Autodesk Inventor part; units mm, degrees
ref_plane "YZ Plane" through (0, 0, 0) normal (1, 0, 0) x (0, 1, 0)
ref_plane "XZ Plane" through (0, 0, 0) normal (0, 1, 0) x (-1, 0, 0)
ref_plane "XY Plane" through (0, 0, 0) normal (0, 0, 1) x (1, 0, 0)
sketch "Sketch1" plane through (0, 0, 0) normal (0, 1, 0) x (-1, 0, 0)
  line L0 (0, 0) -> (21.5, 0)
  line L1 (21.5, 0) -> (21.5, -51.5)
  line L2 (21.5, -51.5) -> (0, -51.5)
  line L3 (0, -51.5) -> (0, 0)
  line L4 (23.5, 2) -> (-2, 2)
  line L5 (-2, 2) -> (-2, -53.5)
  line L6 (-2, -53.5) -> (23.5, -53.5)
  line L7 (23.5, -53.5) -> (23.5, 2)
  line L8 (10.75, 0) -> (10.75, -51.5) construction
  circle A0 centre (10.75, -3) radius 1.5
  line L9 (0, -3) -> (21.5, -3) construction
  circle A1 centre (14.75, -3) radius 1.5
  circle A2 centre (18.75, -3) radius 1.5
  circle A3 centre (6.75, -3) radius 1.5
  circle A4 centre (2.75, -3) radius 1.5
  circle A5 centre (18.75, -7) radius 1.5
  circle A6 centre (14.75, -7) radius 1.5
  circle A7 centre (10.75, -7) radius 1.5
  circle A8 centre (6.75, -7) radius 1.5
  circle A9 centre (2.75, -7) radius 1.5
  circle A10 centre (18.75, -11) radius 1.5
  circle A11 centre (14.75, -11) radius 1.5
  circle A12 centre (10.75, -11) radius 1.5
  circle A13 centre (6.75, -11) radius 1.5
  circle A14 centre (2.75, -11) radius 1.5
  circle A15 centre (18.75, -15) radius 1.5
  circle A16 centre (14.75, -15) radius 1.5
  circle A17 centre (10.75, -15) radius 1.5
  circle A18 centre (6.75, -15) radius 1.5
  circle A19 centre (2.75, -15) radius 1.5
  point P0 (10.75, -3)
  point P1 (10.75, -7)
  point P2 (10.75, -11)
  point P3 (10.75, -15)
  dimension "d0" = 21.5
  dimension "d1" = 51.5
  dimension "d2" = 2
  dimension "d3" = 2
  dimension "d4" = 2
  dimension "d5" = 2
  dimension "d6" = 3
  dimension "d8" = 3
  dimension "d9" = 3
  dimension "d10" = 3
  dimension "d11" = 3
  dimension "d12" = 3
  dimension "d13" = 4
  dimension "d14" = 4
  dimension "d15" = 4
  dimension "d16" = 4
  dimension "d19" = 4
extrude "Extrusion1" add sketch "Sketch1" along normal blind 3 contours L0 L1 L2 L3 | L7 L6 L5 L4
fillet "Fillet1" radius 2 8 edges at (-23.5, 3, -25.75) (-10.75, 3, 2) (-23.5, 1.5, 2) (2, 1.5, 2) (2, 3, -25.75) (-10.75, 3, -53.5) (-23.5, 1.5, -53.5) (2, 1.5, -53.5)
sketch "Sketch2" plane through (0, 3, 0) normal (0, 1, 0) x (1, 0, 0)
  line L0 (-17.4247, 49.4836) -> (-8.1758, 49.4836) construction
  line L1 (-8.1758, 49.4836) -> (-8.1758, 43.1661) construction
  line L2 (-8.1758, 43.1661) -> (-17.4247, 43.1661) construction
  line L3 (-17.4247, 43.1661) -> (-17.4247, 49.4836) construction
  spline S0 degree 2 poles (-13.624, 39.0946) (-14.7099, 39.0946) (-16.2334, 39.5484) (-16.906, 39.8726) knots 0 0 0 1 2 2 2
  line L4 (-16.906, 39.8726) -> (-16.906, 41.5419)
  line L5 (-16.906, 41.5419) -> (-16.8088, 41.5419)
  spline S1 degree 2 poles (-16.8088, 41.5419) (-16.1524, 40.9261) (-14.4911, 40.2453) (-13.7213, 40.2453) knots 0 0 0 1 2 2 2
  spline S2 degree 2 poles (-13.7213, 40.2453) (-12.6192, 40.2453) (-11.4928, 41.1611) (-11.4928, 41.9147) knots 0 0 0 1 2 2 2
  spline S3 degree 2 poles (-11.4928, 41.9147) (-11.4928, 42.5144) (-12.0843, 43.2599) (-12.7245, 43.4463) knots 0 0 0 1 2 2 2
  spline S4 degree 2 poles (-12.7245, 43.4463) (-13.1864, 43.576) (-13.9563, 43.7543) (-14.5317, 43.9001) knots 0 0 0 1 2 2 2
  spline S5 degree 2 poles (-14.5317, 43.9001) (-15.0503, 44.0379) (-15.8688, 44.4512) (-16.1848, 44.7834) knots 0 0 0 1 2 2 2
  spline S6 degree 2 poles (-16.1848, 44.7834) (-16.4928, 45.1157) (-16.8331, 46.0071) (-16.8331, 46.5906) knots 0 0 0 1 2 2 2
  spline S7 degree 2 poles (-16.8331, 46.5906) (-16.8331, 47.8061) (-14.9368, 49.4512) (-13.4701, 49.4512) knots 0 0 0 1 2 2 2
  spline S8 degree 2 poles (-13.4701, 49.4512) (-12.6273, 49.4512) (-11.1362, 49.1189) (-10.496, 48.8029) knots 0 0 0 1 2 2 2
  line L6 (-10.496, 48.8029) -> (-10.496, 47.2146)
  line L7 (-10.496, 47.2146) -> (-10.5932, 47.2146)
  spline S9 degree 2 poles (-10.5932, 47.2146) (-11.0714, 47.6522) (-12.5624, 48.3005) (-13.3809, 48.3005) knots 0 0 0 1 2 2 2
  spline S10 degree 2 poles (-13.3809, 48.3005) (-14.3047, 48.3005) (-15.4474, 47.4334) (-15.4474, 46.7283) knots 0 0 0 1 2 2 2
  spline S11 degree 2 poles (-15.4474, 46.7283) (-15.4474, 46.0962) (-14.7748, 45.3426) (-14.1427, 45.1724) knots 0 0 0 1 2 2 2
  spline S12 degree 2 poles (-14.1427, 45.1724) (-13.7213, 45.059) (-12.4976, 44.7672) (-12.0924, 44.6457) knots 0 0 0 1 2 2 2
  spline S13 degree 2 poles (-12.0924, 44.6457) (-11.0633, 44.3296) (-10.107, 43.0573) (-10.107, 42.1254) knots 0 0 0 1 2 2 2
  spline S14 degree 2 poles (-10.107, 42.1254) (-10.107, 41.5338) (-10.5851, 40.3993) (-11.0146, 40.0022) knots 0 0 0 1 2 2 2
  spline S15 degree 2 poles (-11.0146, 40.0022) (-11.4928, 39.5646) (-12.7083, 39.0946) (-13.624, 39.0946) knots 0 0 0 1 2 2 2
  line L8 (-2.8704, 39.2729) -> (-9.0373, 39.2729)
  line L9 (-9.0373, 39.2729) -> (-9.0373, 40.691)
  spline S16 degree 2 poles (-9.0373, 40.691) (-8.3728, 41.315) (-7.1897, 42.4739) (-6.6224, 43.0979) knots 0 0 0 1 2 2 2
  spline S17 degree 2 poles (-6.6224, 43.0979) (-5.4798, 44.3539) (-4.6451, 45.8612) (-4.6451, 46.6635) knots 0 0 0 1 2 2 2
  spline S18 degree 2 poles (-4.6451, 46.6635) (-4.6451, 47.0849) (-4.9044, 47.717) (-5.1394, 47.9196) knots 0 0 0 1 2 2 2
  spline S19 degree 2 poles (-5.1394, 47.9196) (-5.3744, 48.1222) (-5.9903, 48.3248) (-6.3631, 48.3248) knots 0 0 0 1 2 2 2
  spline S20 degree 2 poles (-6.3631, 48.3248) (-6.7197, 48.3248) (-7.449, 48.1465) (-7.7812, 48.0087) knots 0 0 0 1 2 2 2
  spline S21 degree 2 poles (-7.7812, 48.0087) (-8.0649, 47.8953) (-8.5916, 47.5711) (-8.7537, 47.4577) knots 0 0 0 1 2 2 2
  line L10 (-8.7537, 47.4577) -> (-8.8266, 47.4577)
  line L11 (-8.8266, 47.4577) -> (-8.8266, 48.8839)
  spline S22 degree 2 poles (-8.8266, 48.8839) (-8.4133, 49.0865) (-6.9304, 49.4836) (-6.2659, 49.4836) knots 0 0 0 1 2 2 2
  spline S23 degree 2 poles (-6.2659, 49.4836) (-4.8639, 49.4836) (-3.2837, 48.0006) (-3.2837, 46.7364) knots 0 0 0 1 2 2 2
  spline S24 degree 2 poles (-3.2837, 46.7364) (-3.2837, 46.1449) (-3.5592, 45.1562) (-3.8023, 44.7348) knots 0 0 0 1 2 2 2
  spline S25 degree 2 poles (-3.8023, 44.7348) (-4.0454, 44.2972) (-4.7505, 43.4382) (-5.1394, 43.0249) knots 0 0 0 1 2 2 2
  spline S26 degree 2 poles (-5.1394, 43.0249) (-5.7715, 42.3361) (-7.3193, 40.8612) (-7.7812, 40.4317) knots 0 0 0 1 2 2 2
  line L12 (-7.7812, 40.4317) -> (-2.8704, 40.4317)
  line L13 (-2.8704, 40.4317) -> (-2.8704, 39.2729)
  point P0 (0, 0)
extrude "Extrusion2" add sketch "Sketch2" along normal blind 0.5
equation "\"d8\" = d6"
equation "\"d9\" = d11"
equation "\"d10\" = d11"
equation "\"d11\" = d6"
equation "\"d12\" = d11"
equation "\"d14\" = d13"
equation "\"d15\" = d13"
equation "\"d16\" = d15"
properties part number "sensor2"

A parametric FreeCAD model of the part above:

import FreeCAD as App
import Part
import Sketcher
from FreeCAD import Vector
Q = App.Units.Quantity


def edges_at(feature, points):
    """Names of the edges that pass closest to the given points."""
    edges = feature.Shape.Edges
    near = lambda p: min(range(len(edges)), key=lambda i: edges[i].distToShape(Part.Vertex(*p))[0])
    return sorted({f"Edge{near(p) + 1}" for p in points})


def add_polygon(sketch, points):
    """Adds a closed chain of lines whose ends are joined by coincident constraints."""
    first, n = sketch.GeometryCount, len(points)
    for a, b in zip(points, points[1:] + points[:1]):
        sketch.addGeometry(Part.LineSegment(App.Vector(*a, 0), App.Vector(*b, 0)), False)
    for i in range(n):
        sketch.addConstraint(Sketcher.Constraint("Coincident", first + i, 2, first + (i + 1) % n, 1))

doc = App.newDocument("Part")
body = doc.addObject("PartDesign::Body", "Body")

sketch1 = doc.addObject("Sketcher::SketchObject", "Sketch")
body.addObject(sketch1)
sketch1.AttachmentSupport = (doc.XZ_Plane, [""])
sketch1.MapMode = "FlatFace"
add_polygon(sketch1, [(-23.5, -53.5), (-23.5, 2), (2, 2), (2, -53.5)])
sketch1.addGeometry(Part.Circle(Vector(-2.75, -15, 0), Vector(0, 0, 1), 1.5), False)
sketch1.addGeometry(Part.Circle(Vector(-6.75, -15, 0), Vector(0, 0, 1), 1.5), False)
sketch1.addGeometry(Part.Circle(Vector(-2.75, -11, 0), Vector(0, 0, 1), 1.5), False)
sketch1.addGeometry(Part.Circle(Vector(-2.75, -7, 0), Vector(0, 0, 1), 1.5), False)
sketch1.addGeometry(Part.Circle(Vector(-2.75, -3, 0), Vector(0, 0, 1), 1.5), False)
sketch1.addGeometry(Part.Circle(Vector(-6.75, -11, 0), Vector(0, 0, 1), 1.5), False)
sketch1.addGeometry(Part.Circle(Vector(-6.75, -7, 0), Vector(0, 0, 1), 1.5), False)
sketch1.addGeometry(Part.Circle(Vector(-6.75, -3, 0), Vector(0, 0, 1), 1.5), False)
sketch1.addGeometry(Part.Circle(Vector(-10.75, -15, 0), Vector(0, 0, 1), 1.5), False)
sketch1.addGeometry(Part.Circle(Vector(-14.75, -15, 0), Vector(0, 0, 1), 1.5), False)
sketch1.addGeometry(Part.Circle(Vector(-18.75, -15, 0), Vector(0, 0, 1), 1.5), False)
sketch1.addGeometry(Part.Circle(Vector(-10.75, -11, 0), Vector(0, 0, 1), 1.5), False)
sketch1.addGeometry(Part.Circle(Vector(-10.75, -7, 0), Vector(0, 0, 1), 1.5), False)
sketch1.addGeometry(Part.Circle(Vector(-14.75, -11, 0), Vector(0, 0, 1), 1.5), False)
sketch1.addGeometry(Part.Circle(Vector(-14.75, -7, 0), Vector(0, 0, 1), 1.5), False)
sketch1.addGeometry(Part.Circle(Vector(-10.75, -3, 0), Vector(0, 0, 1), 1.5), False)
sketch1.addGeometry(Part.Circle(Vector(-14.75, -3, 0), Vector(0, 0, 1), 1.5), False)
sketch1.addGeometry(Part.Circle(Vector(-18.75, -11, 0), Vector(0, 0, 1), 1.5), False)
sketch1.addGeometry(Part.Circle(Vector(-18.75, -7, 0), Vector(0, 0, 1), 1.5), False)
sketch1.addGeometry(Part.Circle(Vector(-18.75, -3, 0), Vector(0, 0, 1), 1.5), False)
sketch1.addConstraint([
    Sketcher.Constraint("Vertical", 0),
    Sketcher.Constraint("Horizontal", 1),
    Sketcher.Constraint("Vertical", 2),
    Sketcher.Constraint("Horizontal", 3),
    Sketcher.Constraint("Equal", 4, 5),
    Sketcher.Constraint("Equal", 5, 6),
    Sketcher.Constraint("Equal", 6, 7),
    Sketcher.Constraint("Equal", 7, 8),
    Sketcher.Constraint("Equal", 8, 9),
    Sketcher.Constraint("Equal", 9, 10),
    Sketcher.Constraint("Equal", 10, 11),
    Sketcher.Constraint("Equal", 11, 12),
    Sketcher.Constraint("Equal", 12, 13),
    Sketcher.Constraint("Equal", 13, 14),
    Sketcher.Constraint("Equal", 14, 15),
    Sketcher.Constraint("Equal", 15, 16),
    Sketcher.Constraint("Equal", 16, 17),
    Sketcher.Constraint("Equal", 17, 18),
    Sketcher.Constraint("Equal", 18, 19),
    Sketcher.Constraint("Equal", 19, 20),
    Sketcher.Constraint("Equal", 20, 21),
    Sketcher.Constraint("Equal", 21, 22),
    Sketcher.Constraint("Equal", 22, 23),
    Sketcher.Constraint("Horizontal", 4, 3, 5, 3),
    Sketcher.Constraint("Horizontal", 6, 3, 9, 3),
    Sketcher.Constraint("Horizontal", 7, 3, 10, 3),
    Sketcher.Constraint("Horizontal", 8, 3, 11, 3),
    Sketcher.Constraint("Horizontal", 5, 3, 12, 3),
    Sketcher.Constraint("Horizontal", 12, 3, 13, 3),
    Sketcher.Constraint("Horizontal", 13, 3, 14, 3),
    Sketcher.Constraint("Horizontal", 9, 3, 15, 3),
    Sketcher.Constraint("Horizontal", 10, 3, 16, 3),
    Sketcher.Constraint("Horizontal", 15, 3, 17, 3),
    Sketcher.Constraint("Horizontal", 16, 3, 18, 3),
    Sketcher.Constraint("Horizontal", 11, 3, 19, 3),
    Sketcher.Constraint("Horizontal", 19, 3, 20, 3),
    Sketcher.Constraint("Horizontal", 17, 3, 21, 3),
    Sketcher.Constraint("Horizontal", 18, 3, 22, 3),
    Sketcher.Constraint("Horizontal", 20, 3, 23, 3),
    Sketcher.Constraint("Vertical", 4, 3, 6, 3),
    Sketcher.Constraint("Vertical", 6, 3, 7, 3),
    Sketcher.Constraint("Vertical", 7, 3, 8, 3),
    Sketcher.Constraint("Vertical", 5, 3, 9, 3),
    Sketcher.Constraint("Vertical", 9, 3, 10, 3),
    Sketcher.Constraint("Vertical", 10, 3, 11, 3),
    Sketcher.Constraint("Vertical", 12, 3, 15, 3),
    Sketcher.Constraint("Vertical", 15, 3, 16, 3),
    Sketcher.Constraint("Vertical", 13, 3, 17, 3),
    Sketcher.Constraint("Vertical", 17, 3, 18, 3),
    Sketcher.Constraint("Vertical", 16, 3, 19, 3),
    Sketcher.Constraint("Vertical", 18, 3, 20, 3),
    Sketcher.Constraint("Vertical", 14, 3, 21, 3),
    Sketcher.Constraint("Vertical", 21, 3, 22, 3),
    Sketcher.Constraint("Vertical", 22, 3, 23, 3),
    Sketcher.Constraint("Diameter", 4, Q("3 mm")),
    Sketcher.Constraint("DistanceY", 8, 3, -1, 1, Q("3 mm")),
    Sketcher.Constraint("DistanceY", -1, 1, 0, 2, Q("2 mm")),
    Sketcher.Constraint("DistanceX", -1, 1, 1, 2, Q("2 mm")),
    Sketcher.Constraint("DistanceX", 5, 3, 4, 3, Q("4 mm")),
    Sketcher.Constraint("DistanceY", 4, 3, 6, 3, Q("4 mm")),
    Sketcher.Constraint("DistanceY", 6, 3, 7, 3, Q("4 mm")),
    Sketcher.Constraint("DistanceY", 7, 3, 8, 3, Q("4 mm")),
    Sketcher.Constraint("DistanceX", 12, 3, 5, 3, Q("4 mm")),
    Sketcher.Constraint("DistanceX", 13, 3, 12, 3, Q("4 mm")),
    Sketcher.Constraint("DistanceX", 14, 3, 13, 3, Q("4 mm")),
    Sketcher.Constraint("DistanceX", 1, 1, 1, 2, Q("25.5 mm")),
    Sketcher.Constraint("DistanceY", 0, 1, 0, 2, Q("55.5 mm")),
    Sketcher.Constraint("DistanceX", 4, 3, -1, 1, Q("2.75 mm")),
])
pad1 = doc.addObject("PartDesign::Pad", "Pad")
body.addObject(pad1)
pad1.Profile = sketch1
pad1.Length = 3
pad1.Reversed = True
doc.recompute()

fillet = doc.addObject("PartDesign::Fillet", "Fillet")
body.addObject(fillet)
fillet.Base = (pad1, edges_at(pad1, [
    (-23.5, 3, -25.75),
    (-10.75, 3, 2),
    (-23.5, 1.5, 2),
    (2, 1.5, 2),
    (2, 3, -25.75),
    (-10.75, 3, -53.5),
    (-23.5, 1.5, -53.5),
    (2, 1.5, -53.5),
]))
fillet.Radius = 2

sketch2 = doc.addObject("Sketcher::SketchObject", "Sketch001")
body.addObject(sketch2)
sketch2.AttachmentSupport = (doc.XZ_Plane, [""])
sketch2.MapMode = "FlatFace"
sketch2.AttachmentOffset = App.Placement(Vector(0, 0, -3), App.Rotation())
sketch2.addGeometry([
    Part.BSplineCurve([Vector(-13.624, -39.0946, 0), Vector(-14.7099, -39.0946, 0), Vector(-16.2334, -39.5484, 0), Vector(-16.906, -39.8726, 0)], [3, 1, 3], [0, 1, 2], False, 2, [1, 1, 1, 1], False),
    Part.BSplineCurve([Vector(-11.0146, -40.0022, 0), Vector(-11.4928, -39.5646, 0), Vector(-12.7083, -39.0946, 0), Vector(-13.624, -39.0946, 0)], [3, 1, 3], [0, 1, 2], False, 2, [1, 1, 1, 1], False),
    Part.BSplineCurve([Vector(-10.107, -42.1254, 0), Vector(-10.107, -41.5338, 0), Vector(-10.5851, -40.3993, 0), Vector(-11.0146, -40.0022, 0)], [3, 1, 3], [0, 1, 2], False, 2, [1, 1, 1, 1], False),
    Part.BSplineCurve([Vector(-12.0924, -44.6457, 0), Vector(-11.0633, -44.3296, 0), Vector(-10.107, -43.0573, 0), Vector(-10.107, -42.1254, 0)], [3, 1, 3], [0, 1, 2], False, 2, [1, 1, 1, 1], False),
    Part.BSplineCurve([Vector(-14.1427, -45.1724, 0), Vector(-13.7213, -45.059, 0), Vector(-12.4976, -44.7672, 0), Vector(-12.0924, -44.6457, 0)], [3, 1, 3], [0, 1, 2], False, 2, [1, 1, 1, 1], False),
    Part.BSplineCurve([Vector(-15.4474, -46.7283, 0), Vector(-15.4474, -46.0962, 0), Vector(-14.7748, -45.3426, 0), Vector(-14.1427, -45.1724, 0)], [3, 1, 3], [0, 1, 2], False, 2, [1, 1, 1, 1], False),
    Part.BSplineCurve([Vector(-13.3809, -48.3005, 0), Vector(-14.3047, -48.3005, 0), Vector(-15.4474, -47.4334, 0), Vector(-15.4474, -46.7283, 0)], [3, 1, 3], [0, 1, 2], False, 2, [1, 1, 1, 1], False),
    Part.BSplineCurve([Vector(-10.5932, -47.2146, 0), Vector(-11.0714, -47.6522, 0), Vector(-12.5624, -48.3005, 0), Vector(-13.3809, -48.3005, 0)], [3, 1, 3], [0, 1, 2], False, 2, [1, 1, 1, 1], False),
    Part.LineSegment(Vector(-10.5932, -47.2146, 0), Vector(-10.496, -47.2146, 0)),
    Part.LineSegment(Vector(-10.496, -47.2146, 0), Vector(-10.496, -48.8029, 0)),
    Part.BSplineCurve([Vector(-13.4701, -49.4512, 0), Vector(-12.6273, -49.4512, 0), Vector(-11.1362, -49.1189, 0), Vector(-10.496, -48.8029, 0)], [3, 1, 3], [0, 1, 2], False, 2, [1, 1, 1, 1], False),
    Part.BSplineCurve([Vector(-16.8331, -46.5906, 0), Vector(-16.8331, -47.8061, 0), Vector(-14.9368, -49.4512, 0), Vector(-13.4701, -49.4512, 0)], [3, 1, 3], [0, 1, 2], False, 2, [1, 1, 1, 1], False),
    Part.BSplineCurve([Vector(-16.1848, -44.7834, 0), Vector(-16.4928, -45.1157, 0), Vector(-16.8331, -46.0071, 0), Vector(-16.8331, -46.5906, 0)], [3, 1, 3], [0, 1, 2], False, 2, [1, 1, 1, 1], False),
    Part.BSplineCurve([Vector(-14.5317, -43.9001, 0), Vector(-15.0503, -44.0379, 0), Vector(-15.8688, -44.4512, 0), Vector(-16.1848, -44.7834, 0)], [3, 1, 3], [0, 1, 2], False, 2, [1, 1, 1, 1], False),
    Part.BSplineCurve([Vector(-12.7245, -43.4463, 0), Vector(-13.1864, -43.576, 0), Vector(-13.9563, -43.7543, 0), Vector(-14.5317, -43.9001, 0)], [3, 1, 3], [0, 1, 2], False, 2, [1, 1, 1, 1], False),
    Part.BSplineCurve([Vector(-11.4928, -41.9147, 0), Vector(-11.4928, -42.5144, 0), Vector(-12.0843, -43.2599, 0), Vector(-12.7245, -43.4463, 0)], [3, 1, 3], [0, 1, 2], False, 2, [1, 1, 1, 1], False),
    Part.BSplineCurve([Vector(-13.7213, -40.2453, 0), Vector(-12.6192, -40.2453, 0), Vector(-11.4928, -41.1611, 0), Vector(-11.4928, -41.9147, 0)], [3, 1, 3], [0, 1, 2], False, 2, [1, 1, 1, 1], False),
    Part.BSplineCurve([Vector(-16.8088, -41.5419, 0), Vector(-16.1524, -40.9261, 0), Vector(-14.4911, -40.2453, 0), Vector(-13.7213, -40.2453, 0)], [3, 1, 3], [0, 1, 2], False, 2, [1, 1, 1, 1], False),
    Part.LineSegment(Vector(-16.8088, -41.5419, 0), Vector(-16.906, -41.5419, 0)),
    Part.LineSegment(Vector(-16.906, -41.5419, 0), Vector(-16.906, -39.8726, 0)),
    Part.LineSegment(Vector(-9.0373, -39.2729, 0), Vector(-2.8704, -39.2729, 0)),
    Part.LineSegment(Vector(-2.8704, -39.2729, 0), Vector(-2.8704, -40.4317, 0)),
    Part.LineSegment(Vector(-2.8704, -40.4317, 0), Vector(-7.7812, -40.4317, 0)),
    Part.BSplineCurve([Vector(-5.1394, -43.0249, 0), Vector(-5.7715, -42.3361, 0), Vector(-7.3193, -40.8612, 0), Vector(-7.7812, -40.4317, 0)], [3, 1, 3], [0, 1, 2], False, 2, [1, 1, 1, 1], False),
    Part.BSplineCurve([Vector(-3.8023, -44.7348, 0), Vector(-4.0454, -44.2972, 0), Vector(-4.7505, -43.4382, 0), Vector(-5.1394, -43.0249, 0)], [3, 1, 3], [0, 1, 2], False, 2, [1, 1, 1, 1], False),
    Part.BSplineCurve([Vector(-3.2837, -46.7364, 0), Vector(-3.2837, -46.1449, 0), Vector(-3.5592, -45.1562, 0), Vector(-3.8023, -44.7348, 0)], [3, 1, 3], [0, 1, 2], False, 2, [1, 1, 1, 1], False),
    Part.BSplineCurve([Vector(-6.2659, -49.4836, 0), Vector(-4.8639, -49.4836, 0), Vector(-3.2837, -48.0006, 0), Vector(-3.2837, -46.7364, 0)], [3, 1, 3], [0, 1, 2], False, 2, [1, 1, 1, 1], False),
    Part.BSplineCurve([Vector(-8.8266, -48.8839, 0), Vector(-8.4133, -49.0865, 0), Vector(-6.9304, -49.4836, 0), Vector(-6.2659, -49.4836, 0)], [3, 1, 3], [0, 1, 2], False, 2, [1, 1, 1, 1], False),
    Part.LineSegment(Vector(-8.8266, -48.8839, 0), Vector(-8.8266, -47.4577, 0)),
    Part.LineSegment(Vector(-8.8266, -47.4577, 0), Vector(-8.7537, -47.4577, 0)),
    Part.BSplineCurve([Vector(-7.7812, -48.0087, 0), Vector(-8.0649, -47.8953, 0), Vector(-8.5916, -47.5711, 0), Vector(-8.7537, -47.4577, 0)], [3, 1, 3], [0, 1, 2], False, 2, [1, 1, 1, 1], False),
    Part.BSplineCurve([Vector(-6.3631, -48.3248, 0), Vector(-6.7197, -48.3248, 0), Vector(-7.449, -48.1465, 0), Vector(-7.7812, -48.0087, 0)], [3, 1, 3], [0, 1, 2], False, 2, [1, 1, 1, 1], False),
    Part.BSplineCurve([Vector(-5.1394, -47.9196, 0), Vector(-5.3744, -48.1222, 0), Vector(-5.9903, -48.3248, 0), Vector(-6.3631, -48.3248, 0)], [3, 1, 3], [0, 1, 2], False, 2, [1, 1, 1, 1], False),
    Part.BSplineCurve([Vector(-4.6451, -46.6635, 0), Vector(-4.6451, -47.0849, 0), Vector(-4.9044, -47.717, 0), Vector(-5.1394, -47.9196, 0)], [3, 1, 3], [0, 1, 2], False, 2, [1, 1, 1, 1], False),
    Part.BSplineCurve([Vector(-6.6224, -43.0979, 0), Vector(-5.4798, -44.3539, 0), Vector(-4.6451, -45.8612, 0), Vector(-4.6451, -46.6635, 0)], [3, 1, 3], [0, 1, 2], False, 2, [1, 1, 1, 1], False),
    Part.BSplineCurve([Vector(-9.0373, -40.691, 0), Vector(-8.3728, -41.315, 0), Vector(-7.1897, -42.4739, 0), Vector(-6.6224, -43.0979, 0)], [3, 1, 3], [0, 1, 2], False, 2, [1, 1, 1, 1], False),
    Part.LineSegment(Vector(-9.0373, -40.691, 0), Vector(-9.0373, -39.2729, 0)),
], False)
sketch2.addConstraint([
    Sketcher.Constraint("Block", 0),
    Sketcher.Constraint("Block", 1),
    Sketcher.Constraint("Block", 2),
    Sketcher.Constraint("Block", 3),
    Sketcher.Constraint("Block", 4),
    Sketcher.Constraint("Block", 5),
    Sketcher.Constraint("Block", 6),
    Sketcher.Constraint("Block", 7),
    Sketcher.Constraint("Block", 10),
    Sketcher.Constraint("Block", 11),
    Sketcher.Constraint("Block", 12),
    Sketcher.Constraint("Block", 13),
    Sketcher.Constraint("Block", 14),
    Sketcher.Constraint("Block", 15),
    Sketcher.Constraint("Block", 16),
    Sketcher.Constraint("Block", 17),
    Sketcher.Constraint("Block", 23),
    Sketcher.Constraint("Block", 24),
    Sketcher.Constraint("Block", 25),
    Sketcher.Constraint("Block", 26),
    Sketcher.Constraint("Block", 27),
    Sketcher.Constraint("Block", 30),
    Sketcher.Constraint("Block", 31),
    Sketcher.Constraint("Block", 32),
    Sketcher.Constraint("Block", 33),
    Sketcher.Constraint("Block", 34),
    Sketcher.Constraint("Block", 35),
    Sketcher.Constraint("Coincident", 7, 1, 8, 1),
    Sketcher.Constraint("Coincident", 8, 2, 9, 1),
    Sketcher.Constraint("Coincident", 9, 2, 10, 2),
    Sketcher.Constraint("Coincident", 17, 1, 18, 1),
    Sketcher.Constraint("Coincident", 18, 2, 19, 1),
    Sketcher.Constraint("Coincident", 19, 2, 0, 2),
    Sketcher.Constraint("Coincident", 20, 2, 21, 1),
    Sketcher.Constraint("Coincident", 21, 2, 22, 1),
    Sketcher.Constraint("Coincident", 22, 2, 23, 2),
    Sketcher.Constraint("Coincident", 27, 1, 28, 1),
    Sketcher.Constraint("Coincident", 28, 2, 29, 1),
    Sketcher.Constraint("Coincident", 29, 2, 30, 2),
    Sketcher.Constraint("Coincident", 35, 1, 36, 1),
    Sketcher.Constraint("Coincident", 36, 2, 20, 1),
    Sketcher.Constraint("Horizontal", 8),
    Sketcher.Constraint("Vertical", 9),
    Sketcher.Constraint("Horizontal", 18),
    Sketcher.Constraint("Vertical", 19),
    Sketcher.Constraint("Horizontal", 20),
    Sketcher.Constraint("Vertical", 21),
    Sketcher.Constraint("Horizontal", 22),
    Sketcher.Constraint("Vertical", 28),
    Sketcher.Constraint("Horizontal", 29),
    Sketcher.Constraint("Vertical", 36),
    Sketcher.Constraint("DistanceX", 20, 1, 20, 2, Q("6.167 mm")),
    Sketcher.Constraint("DistanceY", 36, 1, 36, 2, Q("1.418 mm")),
])
pad2 = doc.addObject("PartDesign::Pad", "Pad001")
body.addObject(pad2)
pad2.Profile = sketch2
pad2.Length = 0.5
pad2.Reversed = True

doc.recompute()
